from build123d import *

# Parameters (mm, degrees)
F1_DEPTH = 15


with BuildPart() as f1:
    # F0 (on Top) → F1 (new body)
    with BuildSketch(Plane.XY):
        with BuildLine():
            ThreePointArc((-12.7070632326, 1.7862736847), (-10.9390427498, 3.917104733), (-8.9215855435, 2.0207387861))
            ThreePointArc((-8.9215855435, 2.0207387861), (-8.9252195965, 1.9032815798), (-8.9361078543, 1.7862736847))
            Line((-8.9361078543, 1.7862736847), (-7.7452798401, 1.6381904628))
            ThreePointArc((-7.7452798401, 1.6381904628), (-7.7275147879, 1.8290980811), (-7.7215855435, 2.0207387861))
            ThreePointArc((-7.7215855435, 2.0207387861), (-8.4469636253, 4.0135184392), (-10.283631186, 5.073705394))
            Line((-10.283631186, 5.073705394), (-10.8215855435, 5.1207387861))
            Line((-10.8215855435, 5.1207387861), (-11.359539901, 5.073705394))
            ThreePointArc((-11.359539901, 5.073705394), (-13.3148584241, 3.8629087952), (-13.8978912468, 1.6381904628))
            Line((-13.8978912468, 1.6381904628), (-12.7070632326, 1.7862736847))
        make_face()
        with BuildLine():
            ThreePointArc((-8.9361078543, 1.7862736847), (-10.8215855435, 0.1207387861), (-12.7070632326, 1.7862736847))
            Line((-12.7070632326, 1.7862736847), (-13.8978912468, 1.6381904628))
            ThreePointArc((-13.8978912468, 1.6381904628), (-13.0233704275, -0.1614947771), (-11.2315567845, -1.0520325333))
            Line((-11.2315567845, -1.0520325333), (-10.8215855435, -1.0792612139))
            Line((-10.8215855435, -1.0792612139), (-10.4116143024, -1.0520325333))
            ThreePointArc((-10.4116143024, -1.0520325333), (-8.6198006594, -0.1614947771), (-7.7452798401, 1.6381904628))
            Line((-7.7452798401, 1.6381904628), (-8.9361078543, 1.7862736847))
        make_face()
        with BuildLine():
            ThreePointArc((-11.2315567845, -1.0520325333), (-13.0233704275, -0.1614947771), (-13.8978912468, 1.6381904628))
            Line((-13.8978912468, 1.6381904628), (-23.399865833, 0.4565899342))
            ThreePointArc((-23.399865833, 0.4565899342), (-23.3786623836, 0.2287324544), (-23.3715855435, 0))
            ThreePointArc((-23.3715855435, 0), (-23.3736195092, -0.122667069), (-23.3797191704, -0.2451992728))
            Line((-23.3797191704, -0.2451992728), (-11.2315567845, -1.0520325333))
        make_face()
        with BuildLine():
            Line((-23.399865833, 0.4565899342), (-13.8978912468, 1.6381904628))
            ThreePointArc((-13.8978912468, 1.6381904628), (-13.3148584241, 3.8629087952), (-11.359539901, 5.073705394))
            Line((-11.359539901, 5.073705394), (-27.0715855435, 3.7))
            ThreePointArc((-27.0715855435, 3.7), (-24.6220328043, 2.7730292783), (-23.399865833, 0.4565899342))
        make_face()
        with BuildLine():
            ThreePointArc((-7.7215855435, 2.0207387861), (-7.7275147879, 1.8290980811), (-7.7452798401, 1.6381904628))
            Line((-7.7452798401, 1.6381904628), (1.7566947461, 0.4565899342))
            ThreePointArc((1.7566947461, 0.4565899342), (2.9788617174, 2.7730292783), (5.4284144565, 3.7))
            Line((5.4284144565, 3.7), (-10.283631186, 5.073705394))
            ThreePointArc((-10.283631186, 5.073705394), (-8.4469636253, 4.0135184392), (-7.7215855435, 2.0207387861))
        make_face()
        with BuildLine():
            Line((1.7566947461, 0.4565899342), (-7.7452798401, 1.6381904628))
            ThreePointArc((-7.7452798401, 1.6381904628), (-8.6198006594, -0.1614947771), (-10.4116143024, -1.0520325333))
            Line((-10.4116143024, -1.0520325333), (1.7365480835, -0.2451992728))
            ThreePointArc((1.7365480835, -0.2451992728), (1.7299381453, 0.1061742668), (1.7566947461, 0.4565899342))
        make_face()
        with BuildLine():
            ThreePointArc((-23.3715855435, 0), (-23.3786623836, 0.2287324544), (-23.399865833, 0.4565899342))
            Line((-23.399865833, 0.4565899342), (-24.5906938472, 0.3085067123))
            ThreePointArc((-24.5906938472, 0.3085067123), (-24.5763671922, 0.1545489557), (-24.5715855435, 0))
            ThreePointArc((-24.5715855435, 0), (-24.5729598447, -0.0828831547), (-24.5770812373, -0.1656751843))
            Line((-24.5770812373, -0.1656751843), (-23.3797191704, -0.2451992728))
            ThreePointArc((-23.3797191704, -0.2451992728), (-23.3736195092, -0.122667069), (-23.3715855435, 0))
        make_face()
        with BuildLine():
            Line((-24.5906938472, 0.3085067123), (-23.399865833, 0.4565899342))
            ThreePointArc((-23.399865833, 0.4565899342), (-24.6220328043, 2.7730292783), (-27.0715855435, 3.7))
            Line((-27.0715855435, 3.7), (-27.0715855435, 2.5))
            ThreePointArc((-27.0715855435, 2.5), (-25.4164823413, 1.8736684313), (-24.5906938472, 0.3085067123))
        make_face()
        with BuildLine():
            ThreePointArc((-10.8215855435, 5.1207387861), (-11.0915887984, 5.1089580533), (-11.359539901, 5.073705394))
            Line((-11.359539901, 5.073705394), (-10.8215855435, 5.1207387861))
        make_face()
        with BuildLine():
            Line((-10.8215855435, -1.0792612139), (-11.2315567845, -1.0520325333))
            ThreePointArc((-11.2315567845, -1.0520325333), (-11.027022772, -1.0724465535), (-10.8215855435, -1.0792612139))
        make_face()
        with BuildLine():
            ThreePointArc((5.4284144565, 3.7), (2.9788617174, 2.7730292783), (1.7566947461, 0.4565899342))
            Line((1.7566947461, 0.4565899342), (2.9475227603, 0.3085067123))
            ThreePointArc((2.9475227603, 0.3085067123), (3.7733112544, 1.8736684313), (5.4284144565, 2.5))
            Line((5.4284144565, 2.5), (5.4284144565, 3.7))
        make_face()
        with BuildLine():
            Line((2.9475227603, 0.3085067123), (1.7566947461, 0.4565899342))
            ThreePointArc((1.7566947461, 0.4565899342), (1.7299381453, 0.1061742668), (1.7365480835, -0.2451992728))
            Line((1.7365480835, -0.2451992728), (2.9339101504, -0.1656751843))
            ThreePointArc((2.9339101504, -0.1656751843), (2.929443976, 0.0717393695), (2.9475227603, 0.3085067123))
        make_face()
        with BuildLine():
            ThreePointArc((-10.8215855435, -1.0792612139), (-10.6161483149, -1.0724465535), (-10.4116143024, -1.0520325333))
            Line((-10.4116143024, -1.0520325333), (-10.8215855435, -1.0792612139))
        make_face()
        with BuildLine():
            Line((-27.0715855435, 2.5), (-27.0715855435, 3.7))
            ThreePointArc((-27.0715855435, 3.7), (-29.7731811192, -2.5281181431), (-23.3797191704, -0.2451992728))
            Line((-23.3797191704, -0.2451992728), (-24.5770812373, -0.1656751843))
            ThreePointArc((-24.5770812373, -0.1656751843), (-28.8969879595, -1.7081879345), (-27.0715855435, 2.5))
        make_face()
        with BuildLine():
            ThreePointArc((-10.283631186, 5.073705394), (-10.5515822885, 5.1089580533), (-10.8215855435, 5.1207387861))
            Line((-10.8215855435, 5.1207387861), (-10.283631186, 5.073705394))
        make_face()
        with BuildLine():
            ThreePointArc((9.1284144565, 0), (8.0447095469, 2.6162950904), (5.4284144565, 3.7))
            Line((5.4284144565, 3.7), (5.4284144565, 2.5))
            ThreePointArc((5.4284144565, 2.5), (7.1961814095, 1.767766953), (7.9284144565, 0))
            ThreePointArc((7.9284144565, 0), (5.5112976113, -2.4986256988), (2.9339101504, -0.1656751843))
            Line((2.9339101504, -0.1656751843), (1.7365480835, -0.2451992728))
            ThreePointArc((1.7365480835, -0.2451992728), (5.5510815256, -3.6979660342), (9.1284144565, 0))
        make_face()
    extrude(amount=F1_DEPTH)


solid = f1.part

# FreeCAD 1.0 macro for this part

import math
import FreeCAD as App
import Part
import Sketcher
Q = App.Units.Quantity

doc = App.newDocument("Part")
body = doc.addObject("PartDesign::Body", "Body")

# Sketch on XY plane
sketch1 = doc.addObject("Sketcher::SketchObject", "Sketch")
body.addObject(sketch1)
sketch1.AttachmentSupport = (doc.XY_Plane, [""])
sketch1.MapMode = "FlatFace"
sketch1.addGeometry([
    Part.ArcOfCircle(Part.Circle(App.Vector(-10.82, 2.02, 0), App.Vector(0, 0, 1), 3.1), math.radians(90), math.radians(99.99)),  # 0
    Part.LineSegment(App.Vector(-11.36, 5.07, 0), App.Vector(-27.07, 3.7, 0)),  # 1
    Part.ArcOfCircle(Part.Circle(App.Vector(-27.07, 0, 0), App.Vector(0, 0, 1), 3.7), math.radians(90), math.radians(356)),  # 2
    Part.LineSegment(App.Vector(-23.38, -0.25, 0), App.Vector(-11.23, -1.05, 0)),  # 3
    Part.ArcOfCircle(Part.Circle(App.Vector(-10.82, 2.02, 0), App.Vector(0, 0, 1), 3.1), math.radians(-97.6), math.radians(-90)),  # 4
    Part.ArcOfCircle(Part.Circle(App.Vector(-10.82, 2.02, 0), App.Vector(0, 0, 1), 3.1), math.radians(-90), math.radians(-82.4)),  # 5
    Part.LineSegment(App.Vector(-10.41, -1.05, 0), App.Vector(1.74, -0.25, 0)),  # 6
    Part.ArcOfCircle(Part.Circle(App.Vector(5.43, 0, 0), App.Vector(0, 0, 1), 3.7), math.radians(-176), math.radians(0)),  # 7
    Part.ArcOfCircle(Part.Circle(App.Vector(5.43, 0, 0), App.Vector(0, 0, 1), 3.7), math.radians(0), math.radians(90)),  # 8
    Part.LineSegment(App.Vector(5.43, 3.7, 0), App.Vector(-10.28, 5.07, 0)),  # 9
    Part.ArcOfCircle(Part.Circle(App.Vector(-10.82, 2.02, 0), App.Vector(0, 0, 1), 3.1), math.radians(80.01), math.radians(90)),  # 10
    Part.ArcOfCircle(Part.Circle(App.Vector(-10.82, 2.02, 0), App.Vector(0, 0, 1), 1.9), math.radians(0), math.radians(187)),  # 11
    Part.ArcOfCircle(Part.Circle(App.Vector(-10.82, 2.02, 0), App.Vector(0, 0, 1), 1.9), math.radians(-7.09), math.radians(0)),  # 12
    Part.ArcOfCircle(Part.Circle(App.Vector(-10.82, 2.02, 0), App.Vector(0, 0, 1), 1.9), math.radians(-173), math.radians(-7)),  # 13
    Part.ArcOfCircle(Part.Circle(App.Vector(5.43, 0, 0), App.Vector(0, 0, 1), 2.5), math.radians(172.91), math.radians(183.8)),  # 14
    Part.ArcOfCircle(Part.Circle(App.Vector(5.43, 0, 0), App.Vector(0, 0, 1), 2.5), math.radians(90), math.radians(173)),  # 15
    Part.ArcOfCircle(Part.Circle(App.Vector(5.43, 0, 0), App.Vector(0, 0, 1), 2.5), math.radians(0), math.radians(90)),  # 16
    Part.ArcOfCircle(Part.Circle(App.Vector(5.43, 0, 0), App.Vector(0, 0, 1), 2.5), math.radians(-176), math.radians(0)),  # 17
    Part.ArcOfCircle(Part.Circle(App.Vector(-27.07, 0, 0), App.Vector(0, 0, 1), 2.5), math.radians(7), math.radians(90)),  # 18
    Part.ArcOfCircle(Part.Circle(App.Vector(-27.07, 0, 0), App.Vector(0, 0, 1), 2.5), math.radians(0), math.radians(7.09)),  # 19
    Part.ArcOfCircle(Part.Circle(App.Vector(-27.07, 0, 0), App.Vector(0, 0, 1), 2.5), math.radians(-3.8), math.radians(0)),  # 20
    Part.ArcOfCircle(Part.Circle(App.Vector(-27.07, 0, 0), App.Vector(0, 0, 1), 2.5), math.radians(90), math.radians(356)),  # 21
], False)
sketch1.addConstraint([
    Sketcher.Constraint("Coincident", 0, 2, 1, 1),
    Sketcher.Constraint("Coincident", 1, 2, 2, 1),
    Sketcher.Constraint("Coincident", 2, 2, 3, 1),
    Sketcher.Constraint("Coincident", 3, 2, 4, 1),
    Sketcher.Constraint("Tangent", 4, 2, 5, 1),
    Sketcher.Constraint("Coincident", 5, 2, 6, 1),
    Sketcher.Constraint("Coincident", 6, 2, 7, 1),
    Sketcher.Constraint("Tangent", 7, 2, 8, 1),
    Sketcher.Constraint("Coincident", 8, 2, 9, 1),
    Sketcher.Constraint("Coincident", 9, 2, 10, 1),
    Sketcher.Constraint("Tangent", 10, 2, 0, 1),
    Sketcher.Constraint("Tangent", 11, 1, 12, 2),
    Sketcher.Constraint("Tangent", 12, 1, 13, 2),
    Sketcher.Constraint("Tangent", 13, 1, 11, 2),
    Sketcher.Constraint("Tangent", 14, 1, 15, 2),
    Sketcher.Constraint("Tangent", 15, 1, 16, 2),
    Sketcher.Constraint("Tangent", 16, 1, 17, 2),
    Sketcher.Constraint("Tangent", 17, 1, 14, 2),
    Sketcher.Constraint("Tangent", 18, 1, 19, 2),
    Sketcher.Constraint("Tangent", 19, 1, 20, 2),
    Sketcher.Constraint("Tangent", 20, 1, 21, 2),
    Sketcher.Constraint("Tangent", 21, 1, 18, 2),
    Sketcher.Constraint("Coincident", 4, 3, 0, 3),
    Sketcher.Constraint("Coincident", 11, 3, 0, 3),
    Sketcher.Constraint("Coincident", 14, 3, 7, 3),
    Sketcher.Constraint("Coincident", 18, 3, 2, 3),
    Sketcher.Constraint("Equal", 0, 4),
    Sketcher.Constraint("Equal", 4, 5),
    Sketcher.Constraint("Equal", 2, 7),
    Sketcher.Constraint("Equal", 7, 8),
    Sketcher.Constraint("Equal", 5, 10),
    Sketcher.Constraint("Equal", 14, 15),
    Sketcher.Constraint("Equal", 17, 18),
    Sketcher.Constraint("Equal", 18, 19),
    Sketcher.Constraint("PointOnObject", 2, 3, -1),
    Sketcher.Constraint("PointOnObject", 7, 3, -1),
    Sketcher.Constraint("PointOnObject", 7, 2, -1),
    Sketcher.Constraint("PointOnObject", 16, 1, -1),
    Sketcher.Constraint("PointOnObject", 19, 1, -1),
    Sketcher.Constraint("Horizontal", 3, 2, 5, 2),
    Sketcher.Constraint("Horizontal", 2, 2, 6, 2),
    Sketcher.Constraint("Horizontal", 0, 2, 9, 2),
    Sketcher.Constraint("Horizontal", 13, 3, 11, 1),
    Sketcher.Constraint("Horizontal", 12, 1, 13, 1),
    Sketcher.Constraint("Horizontal", 14, 1, 18, 1),
    Sketcher.Constraint("Horizontal", 17, 1, 20, 1),
    Sketcher.Constraint("Vertical", 21, 3, 1, 2),
    Sketcher.Constraint("Vertical", 13, 3, 4, 2),
    Sketcher.Constraint("Vertical", 17, 3, 8, 2),
    Sketcher.Constraint("Vertical", 4, 2, 10, 2),
    Sketcher.Constraint("Vertical", 8, 2, 15, 1),
    Sketcher.Constraint("Vertical", 1, 2, 21, 1),
    Sketcher.Constraint("Equal", 3, 6),
    Sketcher.Constraint("Radius", 0, Q("3.1 mm")),
    Sketcher.Constraint("Radius", 2, Q("3.7 mm")),
    Sketcher.Constraint("Radius", 11, Q("1.9 mm")),
    Sketcher.Constraint("Radius", 14, Q("2.5 mm")),
    Sketcher.Constraint("DistanceX", 2, 3, 7, 3, Q("32.5 mm")),
    Sketcher.Constraint("DistanceY", 2, 2, -1, 1, Q("0.245199 mm")),
    Sketcher.Constraint("DistanceY", -1, 1, 0, 3, Q("2.020739 mm")),
    Sketcher.Constraint("DistanceX", 0, 2, -1, 1, Q("11.35954 mm")),
    Sketcher.Constraint("DistanceX", 2, 2, -1, 1, Q("23.379719 mm")),
    Sketcher.Constraint("DistanceX", -1, 1, 17, 1, Q("2.93391 mm")),
    Sketcher.Constraint("DistanceX", 3, 2, 4, 3, Q("0.409971 mm")),
    Sketcher.Constraint("DistanceX", 14, 1, 15, 3, Q("2.480892 mm")),
    Sketcher.Constraint("DistanceX", 12, 1, -1, 1, Q("8.936108 mm")),
])
pad1 = doc.addObject("PartDesign::Pad", "Pad")
body.addObject(pad1)
pad1.Profile = sketch1
pad1.Length = 15

doc.recompute()
